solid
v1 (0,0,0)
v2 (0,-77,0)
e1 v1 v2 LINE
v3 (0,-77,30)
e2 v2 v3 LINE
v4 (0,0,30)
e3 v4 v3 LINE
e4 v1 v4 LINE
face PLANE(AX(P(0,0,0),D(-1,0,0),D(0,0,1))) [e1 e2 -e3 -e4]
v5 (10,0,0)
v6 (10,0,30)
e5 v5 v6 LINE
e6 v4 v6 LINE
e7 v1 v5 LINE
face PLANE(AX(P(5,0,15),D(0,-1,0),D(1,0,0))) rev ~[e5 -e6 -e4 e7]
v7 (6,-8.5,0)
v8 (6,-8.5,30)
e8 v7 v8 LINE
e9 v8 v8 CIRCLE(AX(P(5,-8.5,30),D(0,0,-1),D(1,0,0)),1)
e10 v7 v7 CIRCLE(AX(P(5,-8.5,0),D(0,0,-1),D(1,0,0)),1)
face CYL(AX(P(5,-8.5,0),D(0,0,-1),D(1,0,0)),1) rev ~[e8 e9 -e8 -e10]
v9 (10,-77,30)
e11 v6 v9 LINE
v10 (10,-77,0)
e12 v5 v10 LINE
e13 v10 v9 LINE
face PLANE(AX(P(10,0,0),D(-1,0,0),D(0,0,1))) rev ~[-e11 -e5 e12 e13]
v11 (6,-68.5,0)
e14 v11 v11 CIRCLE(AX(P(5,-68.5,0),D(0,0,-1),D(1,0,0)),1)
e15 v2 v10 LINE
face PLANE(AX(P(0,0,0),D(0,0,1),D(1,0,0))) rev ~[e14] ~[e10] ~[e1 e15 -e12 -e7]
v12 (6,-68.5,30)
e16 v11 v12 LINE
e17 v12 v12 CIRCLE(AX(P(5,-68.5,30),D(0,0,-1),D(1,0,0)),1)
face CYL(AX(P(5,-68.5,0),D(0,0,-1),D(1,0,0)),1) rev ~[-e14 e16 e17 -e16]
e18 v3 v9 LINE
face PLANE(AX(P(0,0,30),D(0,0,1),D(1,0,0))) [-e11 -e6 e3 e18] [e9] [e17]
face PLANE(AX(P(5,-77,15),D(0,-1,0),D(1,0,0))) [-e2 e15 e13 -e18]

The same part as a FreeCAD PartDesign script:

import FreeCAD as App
import Part
import Sketcher


def add_polygon(sketch, points):
    """Adds a closed chain of lines whose ends are joined by coincident constraints."""
    first, n = sketch.GeometryCount, len(points)
    for a, b in zip(points, points[1:] + points[:1]):
        sketch.addGeometry(Part.LineSegment(App.Vector(*a, 0), App.Vector(*b, 0)), False)
    for i in range(n):
        sketch.addConstraint(Sketcher.Constraint("Coincident", first + i, 2, first + (i + 1) % n, 1))

doc = App.newDocument("Part")
body = doc.addObject("PartDesign::Body", "Body")

sketch1 = doc.addObject("Sketcher::SketchObject", "Sketch")
body.addObject(sketch1)
sketch1.AttachmentSupport = (doc.XZ_Plane, [""])
sketch1.MapMode = "FlatFace"
add_polygon(sketch1, [(0, 30), (0, 0), (10, 0), (10, 30)])
sketch1.addConstraint([
    Sketcher.Constraint("Vertical", 0),
    Sketcher.Constraint("Horizontal", 1),
    Sketcher.Constraint("Vertical", 2),
    Sketcher.Constraint("Horizontal", 3),
    Sketcher.Constraint("Coincident", 0, 2, -1, 1),
    Sketcher.Constraint("DistanceX", 1, 1, 1, 2, 10.0),
    Sketcher.Constraint("DistanceY", 0, 2, 0, 1, 30.0),
])
pad1 = doc.addObject("PartDesign::Pad", "Pad")
body.addObject(pad1)
pad1.Profile = sketch1
pad1.Length = 77

sketch2 = doc.addObject("Sketcher::SketchObject", "Sketch001")
body.addObject(sketch2)
sketch2.AttachmentSupport = (doc.XY_Plane, [""])
sketch2.MapMode = "FlatFace"
sketch2.addGeometry([
    Part.Circle(App.Vector(5, -68.5, 0), App.Vector(0, 0, 1), 1),
    Part.Circle(App.Vector(5, -8.5, 0), App.Vector(0, 0, 1), 1),
], False)
sketch2.addConstraint([
    Sketcher.Constraint("Equal", 0, 1),
    Sketcher.Constraint("Vertical", 0, 3, 1, 3),
    Sketcher.Constraint("Diameter", 0, 2.0),
    Sketcher.Constraint("DistanceX", -1, 1, 0, 3, 5.0),
    Sketcher.Constraint("DistanceY", 0, 3, 1, 3, 60.0),
    Sketcher.Constraint("DistanceY", 0, 3, -1, 1, 68.5),
])
pocket1 = doc.addObject("PartDesign::Pocket", "Pocket")
body.addObject(pocket1)
pocket1.Profile = sketch2
pocket1.Type = "ThroughAll"
pocket1.Reversed = True

doc.recompute()
